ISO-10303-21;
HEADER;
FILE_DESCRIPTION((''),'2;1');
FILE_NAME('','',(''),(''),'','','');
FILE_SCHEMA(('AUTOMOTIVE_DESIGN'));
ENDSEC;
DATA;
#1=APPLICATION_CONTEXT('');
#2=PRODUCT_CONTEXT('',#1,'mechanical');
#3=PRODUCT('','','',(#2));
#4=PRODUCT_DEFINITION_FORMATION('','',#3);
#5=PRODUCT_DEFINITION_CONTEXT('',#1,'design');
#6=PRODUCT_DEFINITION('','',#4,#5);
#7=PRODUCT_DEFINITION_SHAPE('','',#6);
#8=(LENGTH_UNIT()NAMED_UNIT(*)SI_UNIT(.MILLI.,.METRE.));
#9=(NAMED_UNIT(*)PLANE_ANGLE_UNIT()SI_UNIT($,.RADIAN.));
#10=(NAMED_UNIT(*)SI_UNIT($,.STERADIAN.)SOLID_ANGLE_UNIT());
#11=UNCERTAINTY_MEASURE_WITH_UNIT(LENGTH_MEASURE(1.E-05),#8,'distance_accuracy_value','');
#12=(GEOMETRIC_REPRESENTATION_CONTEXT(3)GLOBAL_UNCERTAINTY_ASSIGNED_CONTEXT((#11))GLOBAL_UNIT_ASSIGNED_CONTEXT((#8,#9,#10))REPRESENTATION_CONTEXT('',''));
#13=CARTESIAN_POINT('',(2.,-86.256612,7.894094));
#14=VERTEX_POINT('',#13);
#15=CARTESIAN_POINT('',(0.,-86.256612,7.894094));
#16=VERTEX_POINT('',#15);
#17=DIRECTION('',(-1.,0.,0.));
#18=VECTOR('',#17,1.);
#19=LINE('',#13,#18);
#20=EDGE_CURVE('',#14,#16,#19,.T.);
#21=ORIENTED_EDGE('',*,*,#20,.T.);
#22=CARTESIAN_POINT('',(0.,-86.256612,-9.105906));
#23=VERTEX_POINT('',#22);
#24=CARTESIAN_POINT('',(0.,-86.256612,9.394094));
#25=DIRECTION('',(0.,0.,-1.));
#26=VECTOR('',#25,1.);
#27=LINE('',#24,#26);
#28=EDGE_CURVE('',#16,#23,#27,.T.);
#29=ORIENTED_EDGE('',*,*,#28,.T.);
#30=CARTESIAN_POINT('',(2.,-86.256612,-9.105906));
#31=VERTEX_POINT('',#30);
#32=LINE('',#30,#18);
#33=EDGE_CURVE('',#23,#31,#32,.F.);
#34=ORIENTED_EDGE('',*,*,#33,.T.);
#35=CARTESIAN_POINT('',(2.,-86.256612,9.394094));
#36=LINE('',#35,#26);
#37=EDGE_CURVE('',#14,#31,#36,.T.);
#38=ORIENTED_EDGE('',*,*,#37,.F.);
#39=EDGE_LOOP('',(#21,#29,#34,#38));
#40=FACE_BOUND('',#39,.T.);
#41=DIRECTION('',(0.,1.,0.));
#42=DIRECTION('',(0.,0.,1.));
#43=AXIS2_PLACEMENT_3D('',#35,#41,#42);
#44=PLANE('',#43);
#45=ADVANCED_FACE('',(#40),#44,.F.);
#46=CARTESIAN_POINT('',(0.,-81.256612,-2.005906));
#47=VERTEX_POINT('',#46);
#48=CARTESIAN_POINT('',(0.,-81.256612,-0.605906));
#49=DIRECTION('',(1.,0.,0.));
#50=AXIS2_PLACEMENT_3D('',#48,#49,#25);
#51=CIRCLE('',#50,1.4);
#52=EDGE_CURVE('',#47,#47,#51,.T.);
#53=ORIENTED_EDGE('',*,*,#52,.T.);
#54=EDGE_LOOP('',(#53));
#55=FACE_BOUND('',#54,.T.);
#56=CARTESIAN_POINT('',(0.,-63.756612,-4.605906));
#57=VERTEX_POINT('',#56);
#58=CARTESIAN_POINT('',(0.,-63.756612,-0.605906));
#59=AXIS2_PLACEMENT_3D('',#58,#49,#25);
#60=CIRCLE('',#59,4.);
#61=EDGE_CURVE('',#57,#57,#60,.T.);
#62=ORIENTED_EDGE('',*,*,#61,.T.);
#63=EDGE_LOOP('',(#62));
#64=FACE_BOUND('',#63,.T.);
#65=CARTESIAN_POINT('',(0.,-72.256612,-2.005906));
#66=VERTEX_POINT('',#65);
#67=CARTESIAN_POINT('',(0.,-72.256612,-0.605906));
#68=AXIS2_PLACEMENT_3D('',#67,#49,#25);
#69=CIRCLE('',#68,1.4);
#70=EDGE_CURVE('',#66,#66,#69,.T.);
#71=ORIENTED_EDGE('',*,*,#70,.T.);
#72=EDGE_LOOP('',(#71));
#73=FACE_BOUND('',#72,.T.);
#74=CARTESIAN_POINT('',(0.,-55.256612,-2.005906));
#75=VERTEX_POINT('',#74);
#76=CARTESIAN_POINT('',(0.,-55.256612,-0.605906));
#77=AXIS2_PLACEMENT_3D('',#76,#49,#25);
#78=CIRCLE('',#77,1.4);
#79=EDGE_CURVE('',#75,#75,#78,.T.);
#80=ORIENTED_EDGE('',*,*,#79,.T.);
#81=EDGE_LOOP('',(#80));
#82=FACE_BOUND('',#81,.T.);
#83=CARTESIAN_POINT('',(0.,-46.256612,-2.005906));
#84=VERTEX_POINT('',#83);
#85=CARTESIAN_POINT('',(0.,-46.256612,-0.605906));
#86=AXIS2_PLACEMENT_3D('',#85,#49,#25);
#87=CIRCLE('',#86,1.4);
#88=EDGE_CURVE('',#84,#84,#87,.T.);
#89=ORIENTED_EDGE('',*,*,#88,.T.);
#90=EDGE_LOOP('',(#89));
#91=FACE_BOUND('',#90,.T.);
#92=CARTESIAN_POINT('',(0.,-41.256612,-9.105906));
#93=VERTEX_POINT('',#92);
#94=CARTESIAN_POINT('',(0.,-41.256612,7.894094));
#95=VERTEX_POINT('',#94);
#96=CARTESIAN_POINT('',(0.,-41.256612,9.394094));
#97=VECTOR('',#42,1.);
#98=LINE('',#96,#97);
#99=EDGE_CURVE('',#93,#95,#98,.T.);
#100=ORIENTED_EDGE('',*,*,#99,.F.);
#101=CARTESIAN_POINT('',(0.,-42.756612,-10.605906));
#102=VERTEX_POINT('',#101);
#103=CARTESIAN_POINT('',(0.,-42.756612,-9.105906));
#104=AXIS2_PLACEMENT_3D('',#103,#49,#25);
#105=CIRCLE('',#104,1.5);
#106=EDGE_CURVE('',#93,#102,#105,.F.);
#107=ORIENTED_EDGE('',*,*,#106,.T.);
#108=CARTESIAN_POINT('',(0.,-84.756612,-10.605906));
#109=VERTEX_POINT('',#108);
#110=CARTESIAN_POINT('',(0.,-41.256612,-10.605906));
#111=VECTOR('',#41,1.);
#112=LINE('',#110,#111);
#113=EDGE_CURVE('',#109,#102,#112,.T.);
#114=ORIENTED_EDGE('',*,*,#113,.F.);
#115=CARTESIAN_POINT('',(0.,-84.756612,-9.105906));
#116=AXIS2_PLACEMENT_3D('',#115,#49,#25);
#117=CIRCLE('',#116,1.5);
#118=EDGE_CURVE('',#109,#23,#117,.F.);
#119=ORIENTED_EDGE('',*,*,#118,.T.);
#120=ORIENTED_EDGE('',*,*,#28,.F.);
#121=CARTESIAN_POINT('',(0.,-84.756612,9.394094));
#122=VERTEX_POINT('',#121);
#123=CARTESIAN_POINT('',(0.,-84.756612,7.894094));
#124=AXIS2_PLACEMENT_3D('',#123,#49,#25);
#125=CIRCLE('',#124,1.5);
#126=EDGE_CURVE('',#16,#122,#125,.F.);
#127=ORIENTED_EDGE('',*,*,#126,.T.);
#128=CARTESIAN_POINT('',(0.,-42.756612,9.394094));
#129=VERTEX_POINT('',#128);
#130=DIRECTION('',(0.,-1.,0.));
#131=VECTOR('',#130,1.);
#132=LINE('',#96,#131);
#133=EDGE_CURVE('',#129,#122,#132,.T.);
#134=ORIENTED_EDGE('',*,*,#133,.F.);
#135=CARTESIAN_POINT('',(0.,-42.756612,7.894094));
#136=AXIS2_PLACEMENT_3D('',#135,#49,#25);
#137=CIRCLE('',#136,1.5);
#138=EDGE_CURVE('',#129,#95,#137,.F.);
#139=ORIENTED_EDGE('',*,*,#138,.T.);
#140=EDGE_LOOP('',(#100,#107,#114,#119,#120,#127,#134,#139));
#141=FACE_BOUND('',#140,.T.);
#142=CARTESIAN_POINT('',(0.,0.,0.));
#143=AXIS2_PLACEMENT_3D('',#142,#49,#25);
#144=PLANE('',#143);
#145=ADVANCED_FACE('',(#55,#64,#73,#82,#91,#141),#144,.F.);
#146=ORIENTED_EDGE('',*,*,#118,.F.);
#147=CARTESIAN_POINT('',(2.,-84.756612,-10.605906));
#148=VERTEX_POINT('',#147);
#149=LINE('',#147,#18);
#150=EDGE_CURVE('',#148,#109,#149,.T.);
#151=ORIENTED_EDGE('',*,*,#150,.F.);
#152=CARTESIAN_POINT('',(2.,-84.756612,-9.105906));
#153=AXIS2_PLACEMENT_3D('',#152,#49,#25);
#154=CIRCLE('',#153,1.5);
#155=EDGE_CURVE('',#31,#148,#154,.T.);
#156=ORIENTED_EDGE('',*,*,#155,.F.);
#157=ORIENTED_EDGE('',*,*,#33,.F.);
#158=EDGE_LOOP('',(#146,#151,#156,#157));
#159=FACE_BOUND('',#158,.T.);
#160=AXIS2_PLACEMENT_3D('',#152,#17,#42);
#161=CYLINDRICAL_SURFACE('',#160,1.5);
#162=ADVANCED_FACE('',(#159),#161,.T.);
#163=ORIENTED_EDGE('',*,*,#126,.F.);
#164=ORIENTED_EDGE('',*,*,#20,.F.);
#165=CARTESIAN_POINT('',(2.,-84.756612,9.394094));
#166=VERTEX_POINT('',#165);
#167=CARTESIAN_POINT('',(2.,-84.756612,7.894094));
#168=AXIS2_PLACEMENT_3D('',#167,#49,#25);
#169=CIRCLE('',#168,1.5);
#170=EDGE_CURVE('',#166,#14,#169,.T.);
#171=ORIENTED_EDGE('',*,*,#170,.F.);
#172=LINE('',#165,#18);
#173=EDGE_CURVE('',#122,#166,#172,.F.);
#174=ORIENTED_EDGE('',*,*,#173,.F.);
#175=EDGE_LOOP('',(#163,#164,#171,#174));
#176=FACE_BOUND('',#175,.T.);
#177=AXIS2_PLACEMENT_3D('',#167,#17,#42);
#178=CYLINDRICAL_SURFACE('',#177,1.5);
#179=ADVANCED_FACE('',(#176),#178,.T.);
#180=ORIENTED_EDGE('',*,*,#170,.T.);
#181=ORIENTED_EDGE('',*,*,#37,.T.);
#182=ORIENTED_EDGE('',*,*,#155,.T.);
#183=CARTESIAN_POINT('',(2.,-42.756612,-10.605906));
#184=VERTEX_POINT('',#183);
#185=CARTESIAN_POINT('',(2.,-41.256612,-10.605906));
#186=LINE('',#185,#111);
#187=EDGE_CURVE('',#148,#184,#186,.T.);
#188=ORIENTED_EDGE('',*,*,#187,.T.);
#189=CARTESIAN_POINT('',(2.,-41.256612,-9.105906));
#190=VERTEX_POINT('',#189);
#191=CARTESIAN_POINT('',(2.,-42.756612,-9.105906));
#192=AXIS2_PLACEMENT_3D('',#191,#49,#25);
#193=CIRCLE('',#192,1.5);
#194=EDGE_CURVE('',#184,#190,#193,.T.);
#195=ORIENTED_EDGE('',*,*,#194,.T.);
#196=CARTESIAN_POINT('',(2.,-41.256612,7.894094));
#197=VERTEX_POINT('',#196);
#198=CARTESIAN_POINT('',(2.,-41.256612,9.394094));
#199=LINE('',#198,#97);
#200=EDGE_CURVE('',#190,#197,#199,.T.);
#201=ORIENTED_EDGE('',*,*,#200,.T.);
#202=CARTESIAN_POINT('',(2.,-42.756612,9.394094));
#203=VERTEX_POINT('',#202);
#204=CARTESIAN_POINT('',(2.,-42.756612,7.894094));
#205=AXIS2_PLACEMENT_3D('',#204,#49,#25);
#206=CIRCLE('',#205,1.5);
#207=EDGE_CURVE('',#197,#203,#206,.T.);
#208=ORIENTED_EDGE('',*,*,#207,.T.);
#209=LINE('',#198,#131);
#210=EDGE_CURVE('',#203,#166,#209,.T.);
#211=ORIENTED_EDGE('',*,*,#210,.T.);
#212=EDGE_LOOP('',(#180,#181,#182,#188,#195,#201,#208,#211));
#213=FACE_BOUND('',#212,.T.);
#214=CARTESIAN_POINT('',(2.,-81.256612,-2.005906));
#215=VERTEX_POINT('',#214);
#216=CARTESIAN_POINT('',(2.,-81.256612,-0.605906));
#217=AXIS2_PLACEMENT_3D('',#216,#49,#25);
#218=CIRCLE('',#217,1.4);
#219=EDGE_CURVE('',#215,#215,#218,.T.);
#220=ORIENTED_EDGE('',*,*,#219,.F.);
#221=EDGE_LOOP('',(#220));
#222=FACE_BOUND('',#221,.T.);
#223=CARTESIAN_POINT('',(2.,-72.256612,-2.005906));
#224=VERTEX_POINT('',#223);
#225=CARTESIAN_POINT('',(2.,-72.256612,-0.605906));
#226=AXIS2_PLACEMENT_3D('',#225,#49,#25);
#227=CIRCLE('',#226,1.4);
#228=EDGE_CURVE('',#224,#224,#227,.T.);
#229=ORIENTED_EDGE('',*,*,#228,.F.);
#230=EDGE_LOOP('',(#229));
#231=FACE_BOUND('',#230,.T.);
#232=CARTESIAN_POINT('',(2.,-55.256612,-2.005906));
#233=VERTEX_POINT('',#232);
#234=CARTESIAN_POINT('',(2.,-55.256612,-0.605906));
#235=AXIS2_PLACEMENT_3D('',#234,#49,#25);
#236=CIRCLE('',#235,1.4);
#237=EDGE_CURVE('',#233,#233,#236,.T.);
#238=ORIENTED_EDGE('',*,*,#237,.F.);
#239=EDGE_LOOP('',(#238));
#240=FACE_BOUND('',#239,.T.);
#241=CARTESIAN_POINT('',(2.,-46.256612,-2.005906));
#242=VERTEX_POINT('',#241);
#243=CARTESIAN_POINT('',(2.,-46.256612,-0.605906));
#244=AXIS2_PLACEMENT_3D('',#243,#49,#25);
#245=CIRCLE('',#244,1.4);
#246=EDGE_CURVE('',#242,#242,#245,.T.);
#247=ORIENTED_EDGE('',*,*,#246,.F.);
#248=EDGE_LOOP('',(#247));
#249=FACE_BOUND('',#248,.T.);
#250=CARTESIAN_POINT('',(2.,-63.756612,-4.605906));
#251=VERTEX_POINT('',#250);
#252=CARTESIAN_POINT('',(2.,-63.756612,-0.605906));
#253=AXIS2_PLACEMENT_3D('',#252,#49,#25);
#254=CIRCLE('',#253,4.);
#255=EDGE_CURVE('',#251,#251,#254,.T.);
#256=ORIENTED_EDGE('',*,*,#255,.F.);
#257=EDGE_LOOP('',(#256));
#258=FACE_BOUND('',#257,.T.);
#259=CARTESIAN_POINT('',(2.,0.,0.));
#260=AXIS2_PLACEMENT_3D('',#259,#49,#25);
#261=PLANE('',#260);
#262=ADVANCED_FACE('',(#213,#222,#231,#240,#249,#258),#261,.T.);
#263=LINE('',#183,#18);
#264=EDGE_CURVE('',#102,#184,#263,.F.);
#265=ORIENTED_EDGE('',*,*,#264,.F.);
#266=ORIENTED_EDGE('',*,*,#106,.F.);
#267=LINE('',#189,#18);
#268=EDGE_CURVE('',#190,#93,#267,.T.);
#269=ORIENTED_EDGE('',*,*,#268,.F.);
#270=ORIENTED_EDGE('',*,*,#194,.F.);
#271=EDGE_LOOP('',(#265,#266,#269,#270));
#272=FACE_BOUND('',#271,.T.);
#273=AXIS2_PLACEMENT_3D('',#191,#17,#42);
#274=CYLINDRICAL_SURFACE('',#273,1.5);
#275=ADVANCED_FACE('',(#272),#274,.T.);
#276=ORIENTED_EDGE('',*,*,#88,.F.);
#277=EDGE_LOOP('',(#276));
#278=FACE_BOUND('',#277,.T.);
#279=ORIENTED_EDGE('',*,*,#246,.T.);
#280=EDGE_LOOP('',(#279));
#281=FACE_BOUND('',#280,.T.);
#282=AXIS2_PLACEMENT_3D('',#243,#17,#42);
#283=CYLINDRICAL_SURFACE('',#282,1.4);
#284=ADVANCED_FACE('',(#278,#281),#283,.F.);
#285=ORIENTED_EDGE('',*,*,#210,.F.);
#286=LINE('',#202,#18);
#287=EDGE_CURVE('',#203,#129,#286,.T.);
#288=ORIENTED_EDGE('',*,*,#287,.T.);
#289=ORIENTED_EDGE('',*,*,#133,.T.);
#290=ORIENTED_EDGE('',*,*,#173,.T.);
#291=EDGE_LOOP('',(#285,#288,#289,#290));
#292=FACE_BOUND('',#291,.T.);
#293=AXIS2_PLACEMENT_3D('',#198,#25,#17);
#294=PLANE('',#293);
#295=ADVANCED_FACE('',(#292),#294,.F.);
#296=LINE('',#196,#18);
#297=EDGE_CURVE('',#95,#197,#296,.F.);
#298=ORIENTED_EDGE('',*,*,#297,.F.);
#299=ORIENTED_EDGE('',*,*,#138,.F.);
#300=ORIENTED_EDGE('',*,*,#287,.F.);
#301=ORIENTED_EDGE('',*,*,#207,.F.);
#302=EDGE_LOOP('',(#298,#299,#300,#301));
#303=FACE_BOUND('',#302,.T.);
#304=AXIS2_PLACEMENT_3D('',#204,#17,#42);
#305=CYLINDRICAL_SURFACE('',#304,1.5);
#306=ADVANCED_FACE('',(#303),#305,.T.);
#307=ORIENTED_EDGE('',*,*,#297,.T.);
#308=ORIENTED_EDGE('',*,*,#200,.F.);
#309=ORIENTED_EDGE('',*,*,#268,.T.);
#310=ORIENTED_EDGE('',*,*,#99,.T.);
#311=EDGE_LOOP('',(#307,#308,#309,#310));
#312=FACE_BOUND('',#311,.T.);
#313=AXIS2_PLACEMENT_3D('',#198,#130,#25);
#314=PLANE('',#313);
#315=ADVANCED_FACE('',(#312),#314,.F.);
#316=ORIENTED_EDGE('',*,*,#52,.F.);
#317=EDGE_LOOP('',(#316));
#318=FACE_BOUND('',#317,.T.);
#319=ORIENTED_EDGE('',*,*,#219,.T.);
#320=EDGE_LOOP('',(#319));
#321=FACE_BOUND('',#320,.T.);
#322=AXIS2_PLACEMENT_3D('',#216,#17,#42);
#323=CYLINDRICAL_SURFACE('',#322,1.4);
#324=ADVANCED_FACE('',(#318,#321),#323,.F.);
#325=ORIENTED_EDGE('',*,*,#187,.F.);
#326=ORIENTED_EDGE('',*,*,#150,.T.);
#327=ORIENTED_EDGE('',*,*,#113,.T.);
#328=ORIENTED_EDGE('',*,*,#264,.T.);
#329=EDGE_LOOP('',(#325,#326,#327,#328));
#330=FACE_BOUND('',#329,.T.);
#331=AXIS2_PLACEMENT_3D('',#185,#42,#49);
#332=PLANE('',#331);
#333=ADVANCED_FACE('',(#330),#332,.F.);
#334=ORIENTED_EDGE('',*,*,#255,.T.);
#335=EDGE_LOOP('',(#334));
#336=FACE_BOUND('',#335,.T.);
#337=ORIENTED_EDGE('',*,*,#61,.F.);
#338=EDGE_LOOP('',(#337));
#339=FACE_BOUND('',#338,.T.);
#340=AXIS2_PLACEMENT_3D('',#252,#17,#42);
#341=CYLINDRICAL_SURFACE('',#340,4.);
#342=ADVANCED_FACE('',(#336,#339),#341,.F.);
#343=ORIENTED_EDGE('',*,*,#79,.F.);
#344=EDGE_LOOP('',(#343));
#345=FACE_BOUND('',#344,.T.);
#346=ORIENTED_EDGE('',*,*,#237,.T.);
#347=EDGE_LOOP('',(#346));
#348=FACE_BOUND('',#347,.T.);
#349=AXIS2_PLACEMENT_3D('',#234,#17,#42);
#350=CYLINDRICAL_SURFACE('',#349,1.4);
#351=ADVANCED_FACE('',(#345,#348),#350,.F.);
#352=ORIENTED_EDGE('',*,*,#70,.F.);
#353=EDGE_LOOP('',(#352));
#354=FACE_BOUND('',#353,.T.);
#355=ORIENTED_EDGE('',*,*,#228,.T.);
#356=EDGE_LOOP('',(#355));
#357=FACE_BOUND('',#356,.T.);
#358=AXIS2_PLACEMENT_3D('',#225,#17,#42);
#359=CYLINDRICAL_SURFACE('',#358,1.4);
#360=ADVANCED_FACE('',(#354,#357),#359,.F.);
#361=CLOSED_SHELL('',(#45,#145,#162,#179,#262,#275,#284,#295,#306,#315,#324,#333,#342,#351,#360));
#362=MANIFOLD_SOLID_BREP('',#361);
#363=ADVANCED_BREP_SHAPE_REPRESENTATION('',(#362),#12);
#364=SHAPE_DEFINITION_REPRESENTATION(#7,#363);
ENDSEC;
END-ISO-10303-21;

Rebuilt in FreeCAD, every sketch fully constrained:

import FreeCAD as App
import Part
import Sketcher

V = App.Vector
Q = App.Units.Quantity


def edges_at(feature, points):
    """Names of the edges that pass closest to the given points."""
    edges = feature.Shape.Edges
    near = lambda p: min(range(len(edges)), key=lambda i: edges[i].distToShape(Part.Vertex(*p))[0])
    return sorted({f"Edge{near(p) + 1}" for p in points})

doc = App.newDocument("Part")
body = doc.addObject("PartDesign::Body", "Body")

sketch1 = body.newObject("Sketcher::SketchObject", "Sketch")
sketch1.AttachmentSupport = (doc.getObject("YZ_Plane"), [""])
sketch1.MapMode = "FlatFace"
sketch1.addGeometry(Part.LineSegment(V(-41.3, 9.4, 0), V(-86.3, 9.4, 0)), False)
sketch1.addGeometry(Part.LineSegment(V(-86.3, 9.4, 0), V(-86.3, -10.6, 0)), False)
sketch1.addGeometry(Part.LineSegment(V(-86.3, -10.6, 0), V(-41.3, -10.6, 0)), False)
sketch1.addGeometry(Part.LineSegment(V(-41.3, -10.6, 0), V(-41.3, 9.4, 0)), False)
sketch1.addGeometry(Part.Circle(V(-81.3, -0.6, 0), V(0, 0, 1), 1.4), False)
sketch1.addGeometry(Part.Circle(V(-72.3, -0.6, 0), V(0, 0, 1), 1.4), False)
sketch1.addGeometry(Part.Circle(V(-63.8, -0.6, 0), V(0, 0, 1), 4), False)
sketch1.addGeometry(Part.Circle(V(-55.3, -0.6, 0), V(0, 0, 1), 1.4), False)
sketch1.addGeometry(Part.Circle(V(-46.3, -0.6, 0), V(0, 0, 1), 1.4), False)
sketch1.addConstraint(Sketcher.Constraint("Coincident", 0, 2, 1, 1))
sketch1.addConstraint(Sketcher.Constraint("Coincident", 1, 2, 2, 1))
sketch1.addConstraint(Sketcher.Constraint("Coincident", 2, 2, 3, 1))
sketch1.addConstraint(Sketcher.Constraint("Coincident", 3, 2, 0, 1))
sketch1.addConstraint(Sketcher.Constraint("Horizontal", 0))
sketch1.addConstraint(Sketcher.Constraint("Vertical", 1))
sketch1.addConstraint(Sketcher.Constraint("Horizontal", 2))
sketch1.addConstraint(Sketcher.Constraint("Vertical", 3))
sketch1.addConstraint(Sketcher.Constraint("Equal", 4, 5))
sketch1.addConstraint(Sketcher.Constraint("Equal", 5, 7))
sketch1.addConstraint(Sketcher.Constraint("Equal", 7, 8))
sketch1.addConstraint(Sketcher.Constraint("Horizontal", 4, 3, 5, 3))
sketch1.addConstraint(Sketcher.Constraint("Horizontal", 5, 3, 6, 3))
sketch1.addConstraint(Sketcher.Constraint("Horizontal", 6, 3, 7, 3))
sketch1.addConstraint(Sketcher.Constraint("Horizontal", 7, 3, 8, 3))
sketch1.addConstraint(Sketcher.Constraint("Diameter", 6, Q("8 mm")))
sketch1.addConstraint(Sketcher.Constraint("Diameter", 4, Q("2.8 mm")))
sketch1.addConstraint(Sketcher.Constraint("DistanceX", 0, 2, 0, 1, Q("45 mm")))
sketch1.addConstraint(Sketcher.Constraint("DistanceY", 1, 2, 1, 1, Q("20 mm")))
sketch1.addConstraint(Sketcher.Constraint("DistanceX", 4, 3, 5, 3, Q("9 mm")))
sketch1.addConstraint(Sketcher.Constraint("DistanceX", 5, 3, 7, 3, Q("17 mm")))
sketch1.addConstraint(Sketcher.Constraint("DistanceX", 7, 3, 8, 3, Q("9 mm")))
sketch1.addConstraint(Sketcher.Constraint("DistanceX", 0, 2, 4, 3, Q("5 mm")))
sketch1.addConstraint(Sketcher.Constraint("DistanceY", 4, 3, 0, 2, Q("10 mm")))
sketch1.addConstraint(Sketcher.Constraint("DistanceX", 5, 3, 6, 3, Q("8.5 mm")))
sketch1.addConstraint(Sketcher.Constraint("DistanceX", 4, 3, -1, 1, Q("81.256612 mm")))
sketch1.addConstraint(Sketcher.Constraint("DistanceY", 4, 3, -1, 1, Q("0.605906 mm")))
pad1 = body.newObject("PartDesign::Pad", "Pad")
pad1.Profile = sketch1
pad1.Length = 2
doc.recompute()

fillet = body.newObject("PartDesign::Fillet", "Fillet")
fillet.Base = (pad1, edges_at(pad1, [
    (1, -41.257, 9.394),
    (1, -41.257, -10.606),
    (1, -86.257, -10.606),
    (1, -86.257, 9.394),
]))
fillet.Radius = 1.5

doc.recompute()
